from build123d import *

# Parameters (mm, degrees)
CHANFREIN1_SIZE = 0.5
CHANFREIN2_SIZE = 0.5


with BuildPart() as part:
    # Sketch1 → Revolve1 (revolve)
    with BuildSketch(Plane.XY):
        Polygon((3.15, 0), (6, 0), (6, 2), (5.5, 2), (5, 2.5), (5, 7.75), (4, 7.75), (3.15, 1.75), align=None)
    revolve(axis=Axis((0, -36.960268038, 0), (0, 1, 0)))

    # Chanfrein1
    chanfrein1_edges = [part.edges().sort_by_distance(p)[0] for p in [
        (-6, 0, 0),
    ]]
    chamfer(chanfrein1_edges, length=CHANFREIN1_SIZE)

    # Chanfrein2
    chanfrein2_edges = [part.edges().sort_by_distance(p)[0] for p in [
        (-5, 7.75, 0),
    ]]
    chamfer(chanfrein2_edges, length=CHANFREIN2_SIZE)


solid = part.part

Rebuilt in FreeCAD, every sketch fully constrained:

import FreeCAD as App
import Part
import Sketcher
Q = App.Units.Quantity


def edges_at(feature, points):
    """Names of the edges that pass closest to the given points."""
    edges = feature.Shape.Edges
    near = lambda p: min(range(len(edges)), key=lambda i: edges[i].distToShape(Part.Vertex(*p))[0])
    return sorted({f"Edge{near(p) + 1}" for p in points})

doc = App.newDocument("Part")
body = doc.addObject("PartDesign::Body", "Body")

# Sketch on XY plane
sketch1 = body.newObject("Sketcher::SketchObject", "Sketch")
sketch1.AttachmentSupport = (doc.getObject("XY_Plane"), [""])
sketch1.MapMode = "FlatFace"
sketch1.addGeometry([
    Part.LineSegment(App.Vector(3.15, 0, 0), App.Vector(6, 0, 0)),  # 0
    Part.LineSegment(App.Vector(6, 0, 0), App.Vector(6, 2, 0)),  # 1
    Part.LineSegment(App.Vector(6, 2, 0), App.Vector(5.5, 2, 0)),  # 2
    Part.LineSegment(App.Vector(5.5, 2, 0), App.Vector(5, 2.5, 0)),  # 3
    Part.LineSegment(App.Vector(5, 2.5, 0), App.Vector(5, 7.75, 0)),  # 4
    Part.LineSegment(App.Vector(5, 7.75, 0), App.Vector(4, 7.75, 0)),  # 5
    Part.LineSegment(App.Vector(4, 7.75, 0), App.Vector(3.15, 1.75, 0)),  # 6
    Part.LineSegment(App.Vector(3.15, 1.75, 0), App.Vector(3.15, 0, 0)),  # 7
], False)
sketch1.addConstraint([
    Sketcher.Constraint("Coincident", 0, 2, 1, 1),
    Sketcher.Constraint("Coincident", 1, 2, 2, 1),
    Sketcher.Constraint("Coincident", 2, 2, 3, 1),
    Sketcher.Constraint("Coincident", 3, 2, 4, 1),
    Sketcher.Constraint("Coincident", 4, 2, 5, 1),
    Sketcher.Constraint("Coincident", 5, 2, 6, 1),
    Sketcher.Constraint("Coincident", 6, 2, 7, 1),
    Sketcher.Constraint("Coincident", 7, 2, 0, 1),
    Sketcher.Constraint("Horizontal", 0),
    Sketcher.Constraint("Vertical", 1),
    Sketcher.Constraint("Horizontal", 2),
    Sketcher.Constraint("Vertical", 4),
    Sketcher.Constraint("Horizontal", 5),
    Sketcher.Constraint("Vertical", 7),
    Sketcher.Constraint("PointOnObject", 0, 2, -1),
    Sketcher.Constraint("DistanceX", 5, 2, 5, 1, Q("1 mm")),
    Sketcher.Constraint("DistanceY", 1, 1, 1, 2, Q("2 mm")),
    Sketcher.Constraint("Angle", 3, Q("135 deg")),
    Sketcher.Constraint("DistanceX", 2, 2, 2, 1, Q("0.5 mm")),
    Sketcher.Constraint("DistanceX", -1, 1, 0, 2, Q("6 mm")),
    Sketcher.Constraint("DistanceX", -1, 1, 3, 2, Q("5 mm")),
    Sketcher.Constraint("DistanceY", 6, 2, 5, 2, Q("6 mm")),
    Sketcher.Constraint("DistanceX", 0, 1, 0, 2, Q("2.85 mm")),
    Sketcher.Constraint("DistanceY", 4, 1, 4, 2, Q("5.25 mm")),
])
revolution = body.newObject("PartDesign::Revolution", "Revolution")
revolution.Profile = sketch1
revolution.ReferenceAxis = (sketch1, ["V_Axis"])
revolution.Angle = 360
doc.recompute()

chamfer = body.newObject("PartDesign::Chamfer", "Chamfer")
chamfer.Base = (revolution, edges_at(revolution, [(-6, 0, 0)]))
chamfer.Size = 0.5
doc.recompute()

chamfer2 = body.newObject("PartDesign::Chamfer", "Chamfer001")
chamfer2.Base = (chamfer, edges_at(chamfer, [(-5, 7.75, 0)]))
chamfer2.Size = 0.5

doc.recompute()
